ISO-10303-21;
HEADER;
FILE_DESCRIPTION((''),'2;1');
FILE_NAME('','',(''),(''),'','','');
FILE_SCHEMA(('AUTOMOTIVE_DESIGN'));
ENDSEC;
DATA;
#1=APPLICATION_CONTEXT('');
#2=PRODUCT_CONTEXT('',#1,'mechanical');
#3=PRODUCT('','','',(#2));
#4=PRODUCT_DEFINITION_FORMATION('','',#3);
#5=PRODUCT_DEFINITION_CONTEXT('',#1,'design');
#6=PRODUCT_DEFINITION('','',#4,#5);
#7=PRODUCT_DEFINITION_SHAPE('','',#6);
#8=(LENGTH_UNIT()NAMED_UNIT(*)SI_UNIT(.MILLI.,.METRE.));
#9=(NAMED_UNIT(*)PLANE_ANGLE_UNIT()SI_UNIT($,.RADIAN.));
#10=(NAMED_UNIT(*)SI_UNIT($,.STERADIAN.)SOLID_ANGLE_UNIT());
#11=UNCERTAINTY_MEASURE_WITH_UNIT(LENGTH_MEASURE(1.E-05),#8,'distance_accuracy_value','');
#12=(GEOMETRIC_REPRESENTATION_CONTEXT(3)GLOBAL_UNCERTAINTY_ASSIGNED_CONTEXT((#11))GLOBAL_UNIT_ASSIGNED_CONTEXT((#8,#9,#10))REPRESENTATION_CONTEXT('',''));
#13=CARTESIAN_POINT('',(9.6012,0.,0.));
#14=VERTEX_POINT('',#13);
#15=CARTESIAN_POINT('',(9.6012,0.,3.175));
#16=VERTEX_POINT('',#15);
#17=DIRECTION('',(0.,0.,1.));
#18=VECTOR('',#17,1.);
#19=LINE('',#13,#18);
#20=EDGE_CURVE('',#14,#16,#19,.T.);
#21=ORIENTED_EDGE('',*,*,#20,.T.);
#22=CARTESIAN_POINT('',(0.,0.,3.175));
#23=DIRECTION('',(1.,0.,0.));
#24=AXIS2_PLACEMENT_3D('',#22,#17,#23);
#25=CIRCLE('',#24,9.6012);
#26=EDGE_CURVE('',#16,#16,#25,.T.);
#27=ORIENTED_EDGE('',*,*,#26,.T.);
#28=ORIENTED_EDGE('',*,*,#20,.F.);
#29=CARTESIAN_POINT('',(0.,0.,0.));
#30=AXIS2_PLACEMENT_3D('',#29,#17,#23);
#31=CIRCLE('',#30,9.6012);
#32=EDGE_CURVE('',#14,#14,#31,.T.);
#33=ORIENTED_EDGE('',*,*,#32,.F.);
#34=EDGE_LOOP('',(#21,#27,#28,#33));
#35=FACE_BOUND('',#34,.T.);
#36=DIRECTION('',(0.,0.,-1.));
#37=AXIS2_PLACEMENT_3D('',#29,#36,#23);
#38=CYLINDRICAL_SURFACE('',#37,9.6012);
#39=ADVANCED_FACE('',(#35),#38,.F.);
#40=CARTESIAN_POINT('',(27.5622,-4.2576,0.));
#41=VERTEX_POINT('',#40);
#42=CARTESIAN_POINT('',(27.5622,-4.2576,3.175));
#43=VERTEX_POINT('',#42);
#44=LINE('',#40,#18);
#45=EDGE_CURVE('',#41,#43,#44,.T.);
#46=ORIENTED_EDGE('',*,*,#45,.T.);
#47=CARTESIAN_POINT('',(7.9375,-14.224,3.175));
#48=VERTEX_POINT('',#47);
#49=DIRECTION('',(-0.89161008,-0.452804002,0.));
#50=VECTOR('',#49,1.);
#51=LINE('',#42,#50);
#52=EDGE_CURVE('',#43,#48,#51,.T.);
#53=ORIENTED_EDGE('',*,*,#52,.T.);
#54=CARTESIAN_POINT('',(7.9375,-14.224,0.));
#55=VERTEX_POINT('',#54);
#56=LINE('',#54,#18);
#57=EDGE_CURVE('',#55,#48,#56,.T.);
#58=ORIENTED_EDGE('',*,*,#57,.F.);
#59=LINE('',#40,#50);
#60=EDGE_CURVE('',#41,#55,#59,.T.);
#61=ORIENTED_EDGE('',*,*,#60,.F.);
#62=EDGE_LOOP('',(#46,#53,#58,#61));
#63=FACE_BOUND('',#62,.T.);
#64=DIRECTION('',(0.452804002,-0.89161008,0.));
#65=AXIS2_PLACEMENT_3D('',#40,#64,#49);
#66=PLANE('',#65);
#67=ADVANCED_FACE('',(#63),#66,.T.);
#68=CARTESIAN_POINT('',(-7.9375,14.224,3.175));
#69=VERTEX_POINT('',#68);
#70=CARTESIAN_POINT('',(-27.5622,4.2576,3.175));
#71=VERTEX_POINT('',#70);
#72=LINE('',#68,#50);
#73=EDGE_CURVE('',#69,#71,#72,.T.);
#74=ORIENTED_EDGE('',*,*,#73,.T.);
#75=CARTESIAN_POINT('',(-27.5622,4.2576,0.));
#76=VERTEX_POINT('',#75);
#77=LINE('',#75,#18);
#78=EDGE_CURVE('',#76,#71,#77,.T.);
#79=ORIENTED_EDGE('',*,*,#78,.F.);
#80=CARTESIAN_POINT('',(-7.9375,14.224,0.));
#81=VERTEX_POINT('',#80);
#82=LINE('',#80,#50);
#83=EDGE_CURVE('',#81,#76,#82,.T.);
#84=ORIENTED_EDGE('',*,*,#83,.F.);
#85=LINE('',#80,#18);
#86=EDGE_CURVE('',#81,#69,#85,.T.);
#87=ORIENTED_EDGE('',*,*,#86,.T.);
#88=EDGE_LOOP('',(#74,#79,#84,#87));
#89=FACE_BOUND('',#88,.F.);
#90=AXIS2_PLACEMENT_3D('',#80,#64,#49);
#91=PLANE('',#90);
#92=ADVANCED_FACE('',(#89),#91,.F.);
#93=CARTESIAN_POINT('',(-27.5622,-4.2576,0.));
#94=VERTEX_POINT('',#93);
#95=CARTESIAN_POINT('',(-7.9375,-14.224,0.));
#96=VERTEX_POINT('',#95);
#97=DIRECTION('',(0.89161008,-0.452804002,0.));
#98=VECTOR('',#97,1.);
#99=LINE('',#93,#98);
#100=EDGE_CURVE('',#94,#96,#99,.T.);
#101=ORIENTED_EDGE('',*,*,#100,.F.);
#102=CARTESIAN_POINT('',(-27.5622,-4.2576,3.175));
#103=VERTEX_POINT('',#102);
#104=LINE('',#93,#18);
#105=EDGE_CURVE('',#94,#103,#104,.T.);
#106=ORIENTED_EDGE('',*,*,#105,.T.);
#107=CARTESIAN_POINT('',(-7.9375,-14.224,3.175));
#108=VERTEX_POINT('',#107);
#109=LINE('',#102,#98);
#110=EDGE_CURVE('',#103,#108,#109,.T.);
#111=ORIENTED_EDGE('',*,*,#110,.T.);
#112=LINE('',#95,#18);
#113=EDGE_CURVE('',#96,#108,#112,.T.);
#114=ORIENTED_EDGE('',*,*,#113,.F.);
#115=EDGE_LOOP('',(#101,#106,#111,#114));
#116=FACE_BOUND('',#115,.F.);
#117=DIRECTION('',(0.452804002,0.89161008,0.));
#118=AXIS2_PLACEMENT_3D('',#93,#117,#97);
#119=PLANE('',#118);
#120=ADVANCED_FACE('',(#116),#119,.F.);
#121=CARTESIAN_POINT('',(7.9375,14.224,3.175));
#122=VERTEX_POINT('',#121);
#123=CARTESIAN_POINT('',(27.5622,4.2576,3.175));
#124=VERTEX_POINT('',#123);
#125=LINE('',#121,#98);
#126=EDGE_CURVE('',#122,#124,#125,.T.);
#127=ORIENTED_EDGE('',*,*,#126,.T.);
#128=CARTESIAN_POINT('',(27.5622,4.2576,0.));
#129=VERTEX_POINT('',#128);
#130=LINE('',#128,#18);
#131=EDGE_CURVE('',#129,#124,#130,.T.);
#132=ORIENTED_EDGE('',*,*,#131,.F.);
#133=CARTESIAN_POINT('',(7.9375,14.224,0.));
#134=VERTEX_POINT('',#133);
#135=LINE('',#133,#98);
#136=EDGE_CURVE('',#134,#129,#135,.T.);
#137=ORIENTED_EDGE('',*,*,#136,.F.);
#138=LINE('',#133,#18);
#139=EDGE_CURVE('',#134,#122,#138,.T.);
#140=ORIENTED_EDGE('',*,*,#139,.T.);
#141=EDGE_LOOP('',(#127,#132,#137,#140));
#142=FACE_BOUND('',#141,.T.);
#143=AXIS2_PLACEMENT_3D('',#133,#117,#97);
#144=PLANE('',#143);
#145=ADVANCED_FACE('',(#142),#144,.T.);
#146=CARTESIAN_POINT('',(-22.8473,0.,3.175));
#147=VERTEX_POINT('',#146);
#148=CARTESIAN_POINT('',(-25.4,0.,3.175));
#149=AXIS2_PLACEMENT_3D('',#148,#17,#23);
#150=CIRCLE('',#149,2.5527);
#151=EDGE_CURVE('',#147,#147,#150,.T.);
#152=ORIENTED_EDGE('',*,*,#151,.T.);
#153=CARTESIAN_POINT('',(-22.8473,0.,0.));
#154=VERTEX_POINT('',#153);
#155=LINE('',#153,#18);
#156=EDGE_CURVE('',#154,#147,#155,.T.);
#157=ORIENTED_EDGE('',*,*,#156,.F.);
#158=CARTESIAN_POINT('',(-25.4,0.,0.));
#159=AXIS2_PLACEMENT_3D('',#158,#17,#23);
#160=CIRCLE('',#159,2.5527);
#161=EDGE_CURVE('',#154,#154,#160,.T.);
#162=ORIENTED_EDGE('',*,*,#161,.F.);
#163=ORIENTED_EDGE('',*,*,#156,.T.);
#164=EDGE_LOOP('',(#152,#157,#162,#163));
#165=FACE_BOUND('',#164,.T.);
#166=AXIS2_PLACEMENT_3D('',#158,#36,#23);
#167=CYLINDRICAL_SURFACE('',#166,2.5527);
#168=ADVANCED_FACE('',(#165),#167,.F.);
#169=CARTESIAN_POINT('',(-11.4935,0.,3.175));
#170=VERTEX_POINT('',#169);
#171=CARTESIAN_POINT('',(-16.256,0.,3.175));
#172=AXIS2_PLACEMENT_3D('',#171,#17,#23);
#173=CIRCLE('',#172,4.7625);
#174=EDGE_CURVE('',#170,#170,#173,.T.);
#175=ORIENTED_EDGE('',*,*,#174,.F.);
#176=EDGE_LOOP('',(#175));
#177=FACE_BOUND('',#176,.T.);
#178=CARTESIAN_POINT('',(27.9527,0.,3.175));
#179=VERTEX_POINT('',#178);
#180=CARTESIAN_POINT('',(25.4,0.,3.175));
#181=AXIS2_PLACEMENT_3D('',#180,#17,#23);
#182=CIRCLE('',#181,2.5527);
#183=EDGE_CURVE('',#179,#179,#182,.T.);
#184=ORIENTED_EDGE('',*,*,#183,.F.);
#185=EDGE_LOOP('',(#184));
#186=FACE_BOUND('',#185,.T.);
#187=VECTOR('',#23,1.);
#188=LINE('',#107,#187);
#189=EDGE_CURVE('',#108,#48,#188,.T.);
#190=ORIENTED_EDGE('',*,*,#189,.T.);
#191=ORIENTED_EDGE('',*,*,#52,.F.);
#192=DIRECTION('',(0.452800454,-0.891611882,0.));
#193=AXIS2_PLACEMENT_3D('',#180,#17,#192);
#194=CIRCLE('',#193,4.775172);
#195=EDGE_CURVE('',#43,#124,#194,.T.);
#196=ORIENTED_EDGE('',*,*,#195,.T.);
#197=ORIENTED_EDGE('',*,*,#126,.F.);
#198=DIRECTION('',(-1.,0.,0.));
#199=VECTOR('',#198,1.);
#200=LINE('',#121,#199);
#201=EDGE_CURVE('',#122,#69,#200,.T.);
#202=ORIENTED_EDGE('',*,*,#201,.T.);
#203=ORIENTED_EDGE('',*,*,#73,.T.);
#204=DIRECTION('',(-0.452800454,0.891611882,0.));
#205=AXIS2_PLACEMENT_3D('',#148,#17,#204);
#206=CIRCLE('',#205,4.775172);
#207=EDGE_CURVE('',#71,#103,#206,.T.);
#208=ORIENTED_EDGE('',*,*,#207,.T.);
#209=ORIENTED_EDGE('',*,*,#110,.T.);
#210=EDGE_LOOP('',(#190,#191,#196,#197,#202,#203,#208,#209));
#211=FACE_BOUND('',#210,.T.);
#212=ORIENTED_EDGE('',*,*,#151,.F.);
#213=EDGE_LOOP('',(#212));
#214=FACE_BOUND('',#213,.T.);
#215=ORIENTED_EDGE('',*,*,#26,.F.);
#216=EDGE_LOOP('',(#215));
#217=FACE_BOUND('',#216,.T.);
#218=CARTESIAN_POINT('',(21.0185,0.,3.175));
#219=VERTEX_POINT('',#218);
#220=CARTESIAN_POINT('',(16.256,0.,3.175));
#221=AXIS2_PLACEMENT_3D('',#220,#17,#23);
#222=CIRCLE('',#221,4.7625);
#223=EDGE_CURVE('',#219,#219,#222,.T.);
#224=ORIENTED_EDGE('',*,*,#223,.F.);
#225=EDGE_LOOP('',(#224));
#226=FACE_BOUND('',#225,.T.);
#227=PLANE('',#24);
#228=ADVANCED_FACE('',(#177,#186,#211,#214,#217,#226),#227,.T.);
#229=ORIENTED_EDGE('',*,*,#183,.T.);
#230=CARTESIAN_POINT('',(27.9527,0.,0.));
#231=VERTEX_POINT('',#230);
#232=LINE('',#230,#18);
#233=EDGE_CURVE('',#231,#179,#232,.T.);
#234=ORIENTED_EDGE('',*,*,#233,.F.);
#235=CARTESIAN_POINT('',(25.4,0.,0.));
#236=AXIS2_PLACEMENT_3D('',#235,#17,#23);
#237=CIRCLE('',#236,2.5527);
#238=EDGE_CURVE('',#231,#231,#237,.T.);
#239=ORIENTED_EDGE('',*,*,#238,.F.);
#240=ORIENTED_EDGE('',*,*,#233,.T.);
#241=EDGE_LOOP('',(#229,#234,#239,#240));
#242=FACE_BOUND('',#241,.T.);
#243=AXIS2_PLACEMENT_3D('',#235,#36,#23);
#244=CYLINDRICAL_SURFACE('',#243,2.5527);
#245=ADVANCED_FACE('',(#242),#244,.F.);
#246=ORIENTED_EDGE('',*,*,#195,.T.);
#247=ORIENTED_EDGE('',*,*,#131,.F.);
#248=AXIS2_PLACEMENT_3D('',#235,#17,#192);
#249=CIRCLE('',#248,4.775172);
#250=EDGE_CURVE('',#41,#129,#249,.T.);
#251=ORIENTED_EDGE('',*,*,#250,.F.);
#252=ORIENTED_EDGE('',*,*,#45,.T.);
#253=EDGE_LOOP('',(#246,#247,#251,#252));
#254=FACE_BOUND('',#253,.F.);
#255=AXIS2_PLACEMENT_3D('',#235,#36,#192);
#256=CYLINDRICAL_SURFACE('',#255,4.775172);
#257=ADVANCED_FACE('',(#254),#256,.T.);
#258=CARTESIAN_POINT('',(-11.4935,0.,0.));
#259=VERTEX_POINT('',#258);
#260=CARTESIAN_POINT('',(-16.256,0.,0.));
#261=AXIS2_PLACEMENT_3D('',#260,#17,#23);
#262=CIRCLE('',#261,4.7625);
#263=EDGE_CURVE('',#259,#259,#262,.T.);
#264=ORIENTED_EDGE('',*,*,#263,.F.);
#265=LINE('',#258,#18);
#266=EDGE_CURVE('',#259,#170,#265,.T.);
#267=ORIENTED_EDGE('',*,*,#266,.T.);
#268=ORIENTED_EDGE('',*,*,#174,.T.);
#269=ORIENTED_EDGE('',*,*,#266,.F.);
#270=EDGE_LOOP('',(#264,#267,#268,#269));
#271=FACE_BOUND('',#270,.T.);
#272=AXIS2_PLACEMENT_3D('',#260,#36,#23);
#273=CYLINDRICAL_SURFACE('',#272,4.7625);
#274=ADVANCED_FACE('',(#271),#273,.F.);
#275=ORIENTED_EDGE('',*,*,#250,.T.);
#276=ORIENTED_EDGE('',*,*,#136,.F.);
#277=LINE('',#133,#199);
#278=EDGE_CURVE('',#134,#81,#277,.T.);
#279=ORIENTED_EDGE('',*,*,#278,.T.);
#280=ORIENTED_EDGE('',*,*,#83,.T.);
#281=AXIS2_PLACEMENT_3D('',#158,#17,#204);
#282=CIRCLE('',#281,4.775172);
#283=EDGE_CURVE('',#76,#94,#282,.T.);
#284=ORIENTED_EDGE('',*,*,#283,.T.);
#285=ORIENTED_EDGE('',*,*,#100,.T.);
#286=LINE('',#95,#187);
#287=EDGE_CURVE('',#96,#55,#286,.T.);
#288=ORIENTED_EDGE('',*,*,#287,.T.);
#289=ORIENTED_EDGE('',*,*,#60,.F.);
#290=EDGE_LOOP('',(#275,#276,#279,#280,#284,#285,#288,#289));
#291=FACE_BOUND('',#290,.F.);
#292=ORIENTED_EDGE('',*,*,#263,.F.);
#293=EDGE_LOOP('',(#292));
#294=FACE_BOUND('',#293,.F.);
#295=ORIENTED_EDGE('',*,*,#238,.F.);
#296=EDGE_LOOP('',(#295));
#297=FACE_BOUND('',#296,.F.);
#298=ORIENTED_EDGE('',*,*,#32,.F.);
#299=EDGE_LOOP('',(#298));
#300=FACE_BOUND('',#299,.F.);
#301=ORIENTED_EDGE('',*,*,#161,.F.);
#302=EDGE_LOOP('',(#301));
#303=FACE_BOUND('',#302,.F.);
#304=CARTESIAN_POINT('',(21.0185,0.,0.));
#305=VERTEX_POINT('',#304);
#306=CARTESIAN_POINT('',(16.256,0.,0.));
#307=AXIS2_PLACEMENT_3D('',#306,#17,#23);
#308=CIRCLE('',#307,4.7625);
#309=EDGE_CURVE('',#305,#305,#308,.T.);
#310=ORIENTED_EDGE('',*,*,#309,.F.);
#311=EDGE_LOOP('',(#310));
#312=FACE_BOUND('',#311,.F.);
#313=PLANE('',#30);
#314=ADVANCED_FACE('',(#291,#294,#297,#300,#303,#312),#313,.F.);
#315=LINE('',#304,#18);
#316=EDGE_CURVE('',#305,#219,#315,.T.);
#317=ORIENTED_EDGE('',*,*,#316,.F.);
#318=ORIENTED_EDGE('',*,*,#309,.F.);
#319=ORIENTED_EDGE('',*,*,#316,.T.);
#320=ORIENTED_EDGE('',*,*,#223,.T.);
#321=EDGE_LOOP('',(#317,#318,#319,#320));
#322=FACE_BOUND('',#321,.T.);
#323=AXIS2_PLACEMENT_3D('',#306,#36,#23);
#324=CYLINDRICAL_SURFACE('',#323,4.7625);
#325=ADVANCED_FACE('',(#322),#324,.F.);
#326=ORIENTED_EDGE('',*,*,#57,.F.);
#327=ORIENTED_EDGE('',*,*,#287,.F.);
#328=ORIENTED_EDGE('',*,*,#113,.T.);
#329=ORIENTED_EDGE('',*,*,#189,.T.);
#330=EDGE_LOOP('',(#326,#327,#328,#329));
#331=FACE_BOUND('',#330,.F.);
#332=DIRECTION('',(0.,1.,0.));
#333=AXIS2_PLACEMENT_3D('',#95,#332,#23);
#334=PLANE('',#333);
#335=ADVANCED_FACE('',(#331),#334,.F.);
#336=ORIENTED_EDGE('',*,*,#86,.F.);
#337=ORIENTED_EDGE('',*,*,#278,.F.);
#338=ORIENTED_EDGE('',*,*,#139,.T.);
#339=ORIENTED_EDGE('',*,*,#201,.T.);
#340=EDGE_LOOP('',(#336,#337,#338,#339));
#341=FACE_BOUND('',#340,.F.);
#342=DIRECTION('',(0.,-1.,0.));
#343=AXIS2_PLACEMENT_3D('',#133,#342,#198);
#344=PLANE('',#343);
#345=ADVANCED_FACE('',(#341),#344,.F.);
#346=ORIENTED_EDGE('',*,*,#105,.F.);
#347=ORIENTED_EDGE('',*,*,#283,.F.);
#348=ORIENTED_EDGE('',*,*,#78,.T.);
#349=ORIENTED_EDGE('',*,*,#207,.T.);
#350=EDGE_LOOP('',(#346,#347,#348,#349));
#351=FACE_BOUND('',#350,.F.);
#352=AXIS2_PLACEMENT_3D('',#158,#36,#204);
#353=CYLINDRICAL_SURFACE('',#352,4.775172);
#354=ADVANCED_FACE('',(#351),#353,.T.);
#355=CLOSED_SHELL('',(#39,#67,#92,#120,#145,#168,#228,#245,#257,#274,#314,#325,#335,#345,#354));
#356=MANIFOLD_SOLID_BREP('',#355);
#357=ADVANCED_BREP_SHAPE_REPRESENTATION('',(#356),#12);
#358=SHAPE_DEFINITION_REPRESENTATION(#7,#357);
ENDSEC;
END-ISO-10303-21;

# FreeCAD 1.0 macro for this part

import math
import FreeCAD as App
import Part
import Sketcher
Q = App.Units.Quantity

doc = App.newDocument("Part")
body = doc.addObject("PartDesign::Body", "Body")

# Sketch on XY plane
sketch1 = doc.addObject("Sketcher::SketchObject", "Sketch")
body.addObject(sketch1)
sketch1.AttachmentSupport = (doc.XY_Plane, [""])
sketch1.MapMode = "FlatFace"
sketch1.addGeometry([
    Part.LineSegment(App.Vector(27.6, 4.3, 0), App.Vector(7.9, 14.2, 0)),  # 0
    Part.LineSegment(App.Vector(7.9, 14.2, 0), App.Vector(-7.9, 14.2, 0)),  # 1
    Part.LineSegment(App.Vector(-7.9, 14.2, 0), App.Vector(-27.6, 4.3, 0)),  # 2
    Part.ArcOfCircle(Part.Circle(App.Vector(-25.4, 0, 0), App.Vector(0, 0, 1), 4.8), math.radians(117), math.radians(243)),  # 3
    Part.LineSegment(App.Vector(-27.6, -4.3, 0), App.Vector(-7.9, -14.2, 0)),  # 4
    Part.LineSegment(App.Vector(-7.9, -14.2, 0), App.Vector(7.9, -14.2, 0)),  # 5
    Part.LineSegment(App.Vector(7.9, -14.2, 0), App.Vector(27.6, -4.3, 0)),  # 6
    Part.ArcOfCircle(Part.Circle(App.Vector(25.4, 0, 0), App.Vector(0, 0, 1), 4.8), math.radians(-63), math.radians(63)),  # 7
    Part.Circle(App.Vector(-25.4, 0, 0), App.Vector(0, 0, 1), 2.6),  # 8
    Part.Circle(App.Vector(-16.3, 0, 0), App.Vector(0, 0, 1), 4.8),  # 9
    Part.Circle(App.Vector(0, 0, 0), App.Vector(0, 0, 1), 9.6),  # 10
    Part.Circle(App.Vector(16.3, 0, 0), App.Vector(0, 0, 1), 4.8),  # 11
    Part.Circle(App.Vector(25.4, 0, 0), App.Vector(0, 0, 1), 2.6),  # 12
], False)
sketch1.addConstraint([
    Sketcher.Constraint("Coincident", 0, 2, 1, 1),
    Sketcher.Constraint("Coincident", 1, 2, 2, 1),
    Sketcher.Constraint("Tangent", 2, 2, 3, 1),
    Sketcher.Constraint("Tangent", 3, 2, 4, 1),
    Sketcher.Constraint("Coincident", 4, 2, 5, 1),
    Sketcher.Constraint("Coincident", 5, 2, 6, 1),
    Sketcher.Constraint("Tangent", 6, 2, 7, 1),
    Sketcher.Constraint("Tangent", 7, 2, 0, 1),
    Sketcher.Constraint("Horizontal", 1),
    Sketcher.Constraint("Horizontal", 5),
    Sketcher.Constraint("Coincident", 10, 3, -1, 1),
    Sketcher.Constraint("Coincident", 8, 3, 3, 3),
    Sketcher.Constraint("Coincident", 12, 3, 7, 3),
    Sketcher.Constraint("Equal", 3, 7),
    Sketcher.Constraint("Equal", 9, 11),
    Sketcher.Constraint("Equal", 8, 12),
    Sketcher.Constraint("Symmetric", 3, 3, 7, 3, -1, 1),
    Sketcher.Constraint("Symmetric", 9, 3, 11, 3, -1, 1),
    Sketcher.Constraint("Symmetric", 0, 2, 4, 2, -1, 1),
    Sketcher.Constraint("Symmetric", 3, 2, 6, 2, -2),
    Sketcher.Constraint("PointOnObject", 9, 3, -1),
    Sketcher.Constraint("Parallel", 2, 6),
    Sketcher.Constraint("Diameter", 8, Q("0.201 in")),
    Sketcher.Constraint("Diameter", 9, Q("0.375 in")),
    Sketcher.Constraint("Diameter", 10, Q("0.756 in")),
    Sketcher.Constraint("DistanceX", 3, 3, -1, 1, Q("1 in")),
    Sketcher.Constraint("Radius", 3, Q("0.188 in")),
    Sketcher.Constraint("DistanceX", 1, 2, 1, 1, Q("0.625 in")),
    Sketcher.Constraint("DistanceX", 9, 3, -1, 1, Q("0.64 in")),
    Sketcher.Constraint("DistanceY", -1, 1, 0, 2, Q("0.56 in")),
])
pad1 = doc.addObject("PartDesign::Pad", "Pad")
body.addObject(pad1)
pad1.Profile = sketch1
pad1.Length = Q("0.125 in")

doc.recompute()
